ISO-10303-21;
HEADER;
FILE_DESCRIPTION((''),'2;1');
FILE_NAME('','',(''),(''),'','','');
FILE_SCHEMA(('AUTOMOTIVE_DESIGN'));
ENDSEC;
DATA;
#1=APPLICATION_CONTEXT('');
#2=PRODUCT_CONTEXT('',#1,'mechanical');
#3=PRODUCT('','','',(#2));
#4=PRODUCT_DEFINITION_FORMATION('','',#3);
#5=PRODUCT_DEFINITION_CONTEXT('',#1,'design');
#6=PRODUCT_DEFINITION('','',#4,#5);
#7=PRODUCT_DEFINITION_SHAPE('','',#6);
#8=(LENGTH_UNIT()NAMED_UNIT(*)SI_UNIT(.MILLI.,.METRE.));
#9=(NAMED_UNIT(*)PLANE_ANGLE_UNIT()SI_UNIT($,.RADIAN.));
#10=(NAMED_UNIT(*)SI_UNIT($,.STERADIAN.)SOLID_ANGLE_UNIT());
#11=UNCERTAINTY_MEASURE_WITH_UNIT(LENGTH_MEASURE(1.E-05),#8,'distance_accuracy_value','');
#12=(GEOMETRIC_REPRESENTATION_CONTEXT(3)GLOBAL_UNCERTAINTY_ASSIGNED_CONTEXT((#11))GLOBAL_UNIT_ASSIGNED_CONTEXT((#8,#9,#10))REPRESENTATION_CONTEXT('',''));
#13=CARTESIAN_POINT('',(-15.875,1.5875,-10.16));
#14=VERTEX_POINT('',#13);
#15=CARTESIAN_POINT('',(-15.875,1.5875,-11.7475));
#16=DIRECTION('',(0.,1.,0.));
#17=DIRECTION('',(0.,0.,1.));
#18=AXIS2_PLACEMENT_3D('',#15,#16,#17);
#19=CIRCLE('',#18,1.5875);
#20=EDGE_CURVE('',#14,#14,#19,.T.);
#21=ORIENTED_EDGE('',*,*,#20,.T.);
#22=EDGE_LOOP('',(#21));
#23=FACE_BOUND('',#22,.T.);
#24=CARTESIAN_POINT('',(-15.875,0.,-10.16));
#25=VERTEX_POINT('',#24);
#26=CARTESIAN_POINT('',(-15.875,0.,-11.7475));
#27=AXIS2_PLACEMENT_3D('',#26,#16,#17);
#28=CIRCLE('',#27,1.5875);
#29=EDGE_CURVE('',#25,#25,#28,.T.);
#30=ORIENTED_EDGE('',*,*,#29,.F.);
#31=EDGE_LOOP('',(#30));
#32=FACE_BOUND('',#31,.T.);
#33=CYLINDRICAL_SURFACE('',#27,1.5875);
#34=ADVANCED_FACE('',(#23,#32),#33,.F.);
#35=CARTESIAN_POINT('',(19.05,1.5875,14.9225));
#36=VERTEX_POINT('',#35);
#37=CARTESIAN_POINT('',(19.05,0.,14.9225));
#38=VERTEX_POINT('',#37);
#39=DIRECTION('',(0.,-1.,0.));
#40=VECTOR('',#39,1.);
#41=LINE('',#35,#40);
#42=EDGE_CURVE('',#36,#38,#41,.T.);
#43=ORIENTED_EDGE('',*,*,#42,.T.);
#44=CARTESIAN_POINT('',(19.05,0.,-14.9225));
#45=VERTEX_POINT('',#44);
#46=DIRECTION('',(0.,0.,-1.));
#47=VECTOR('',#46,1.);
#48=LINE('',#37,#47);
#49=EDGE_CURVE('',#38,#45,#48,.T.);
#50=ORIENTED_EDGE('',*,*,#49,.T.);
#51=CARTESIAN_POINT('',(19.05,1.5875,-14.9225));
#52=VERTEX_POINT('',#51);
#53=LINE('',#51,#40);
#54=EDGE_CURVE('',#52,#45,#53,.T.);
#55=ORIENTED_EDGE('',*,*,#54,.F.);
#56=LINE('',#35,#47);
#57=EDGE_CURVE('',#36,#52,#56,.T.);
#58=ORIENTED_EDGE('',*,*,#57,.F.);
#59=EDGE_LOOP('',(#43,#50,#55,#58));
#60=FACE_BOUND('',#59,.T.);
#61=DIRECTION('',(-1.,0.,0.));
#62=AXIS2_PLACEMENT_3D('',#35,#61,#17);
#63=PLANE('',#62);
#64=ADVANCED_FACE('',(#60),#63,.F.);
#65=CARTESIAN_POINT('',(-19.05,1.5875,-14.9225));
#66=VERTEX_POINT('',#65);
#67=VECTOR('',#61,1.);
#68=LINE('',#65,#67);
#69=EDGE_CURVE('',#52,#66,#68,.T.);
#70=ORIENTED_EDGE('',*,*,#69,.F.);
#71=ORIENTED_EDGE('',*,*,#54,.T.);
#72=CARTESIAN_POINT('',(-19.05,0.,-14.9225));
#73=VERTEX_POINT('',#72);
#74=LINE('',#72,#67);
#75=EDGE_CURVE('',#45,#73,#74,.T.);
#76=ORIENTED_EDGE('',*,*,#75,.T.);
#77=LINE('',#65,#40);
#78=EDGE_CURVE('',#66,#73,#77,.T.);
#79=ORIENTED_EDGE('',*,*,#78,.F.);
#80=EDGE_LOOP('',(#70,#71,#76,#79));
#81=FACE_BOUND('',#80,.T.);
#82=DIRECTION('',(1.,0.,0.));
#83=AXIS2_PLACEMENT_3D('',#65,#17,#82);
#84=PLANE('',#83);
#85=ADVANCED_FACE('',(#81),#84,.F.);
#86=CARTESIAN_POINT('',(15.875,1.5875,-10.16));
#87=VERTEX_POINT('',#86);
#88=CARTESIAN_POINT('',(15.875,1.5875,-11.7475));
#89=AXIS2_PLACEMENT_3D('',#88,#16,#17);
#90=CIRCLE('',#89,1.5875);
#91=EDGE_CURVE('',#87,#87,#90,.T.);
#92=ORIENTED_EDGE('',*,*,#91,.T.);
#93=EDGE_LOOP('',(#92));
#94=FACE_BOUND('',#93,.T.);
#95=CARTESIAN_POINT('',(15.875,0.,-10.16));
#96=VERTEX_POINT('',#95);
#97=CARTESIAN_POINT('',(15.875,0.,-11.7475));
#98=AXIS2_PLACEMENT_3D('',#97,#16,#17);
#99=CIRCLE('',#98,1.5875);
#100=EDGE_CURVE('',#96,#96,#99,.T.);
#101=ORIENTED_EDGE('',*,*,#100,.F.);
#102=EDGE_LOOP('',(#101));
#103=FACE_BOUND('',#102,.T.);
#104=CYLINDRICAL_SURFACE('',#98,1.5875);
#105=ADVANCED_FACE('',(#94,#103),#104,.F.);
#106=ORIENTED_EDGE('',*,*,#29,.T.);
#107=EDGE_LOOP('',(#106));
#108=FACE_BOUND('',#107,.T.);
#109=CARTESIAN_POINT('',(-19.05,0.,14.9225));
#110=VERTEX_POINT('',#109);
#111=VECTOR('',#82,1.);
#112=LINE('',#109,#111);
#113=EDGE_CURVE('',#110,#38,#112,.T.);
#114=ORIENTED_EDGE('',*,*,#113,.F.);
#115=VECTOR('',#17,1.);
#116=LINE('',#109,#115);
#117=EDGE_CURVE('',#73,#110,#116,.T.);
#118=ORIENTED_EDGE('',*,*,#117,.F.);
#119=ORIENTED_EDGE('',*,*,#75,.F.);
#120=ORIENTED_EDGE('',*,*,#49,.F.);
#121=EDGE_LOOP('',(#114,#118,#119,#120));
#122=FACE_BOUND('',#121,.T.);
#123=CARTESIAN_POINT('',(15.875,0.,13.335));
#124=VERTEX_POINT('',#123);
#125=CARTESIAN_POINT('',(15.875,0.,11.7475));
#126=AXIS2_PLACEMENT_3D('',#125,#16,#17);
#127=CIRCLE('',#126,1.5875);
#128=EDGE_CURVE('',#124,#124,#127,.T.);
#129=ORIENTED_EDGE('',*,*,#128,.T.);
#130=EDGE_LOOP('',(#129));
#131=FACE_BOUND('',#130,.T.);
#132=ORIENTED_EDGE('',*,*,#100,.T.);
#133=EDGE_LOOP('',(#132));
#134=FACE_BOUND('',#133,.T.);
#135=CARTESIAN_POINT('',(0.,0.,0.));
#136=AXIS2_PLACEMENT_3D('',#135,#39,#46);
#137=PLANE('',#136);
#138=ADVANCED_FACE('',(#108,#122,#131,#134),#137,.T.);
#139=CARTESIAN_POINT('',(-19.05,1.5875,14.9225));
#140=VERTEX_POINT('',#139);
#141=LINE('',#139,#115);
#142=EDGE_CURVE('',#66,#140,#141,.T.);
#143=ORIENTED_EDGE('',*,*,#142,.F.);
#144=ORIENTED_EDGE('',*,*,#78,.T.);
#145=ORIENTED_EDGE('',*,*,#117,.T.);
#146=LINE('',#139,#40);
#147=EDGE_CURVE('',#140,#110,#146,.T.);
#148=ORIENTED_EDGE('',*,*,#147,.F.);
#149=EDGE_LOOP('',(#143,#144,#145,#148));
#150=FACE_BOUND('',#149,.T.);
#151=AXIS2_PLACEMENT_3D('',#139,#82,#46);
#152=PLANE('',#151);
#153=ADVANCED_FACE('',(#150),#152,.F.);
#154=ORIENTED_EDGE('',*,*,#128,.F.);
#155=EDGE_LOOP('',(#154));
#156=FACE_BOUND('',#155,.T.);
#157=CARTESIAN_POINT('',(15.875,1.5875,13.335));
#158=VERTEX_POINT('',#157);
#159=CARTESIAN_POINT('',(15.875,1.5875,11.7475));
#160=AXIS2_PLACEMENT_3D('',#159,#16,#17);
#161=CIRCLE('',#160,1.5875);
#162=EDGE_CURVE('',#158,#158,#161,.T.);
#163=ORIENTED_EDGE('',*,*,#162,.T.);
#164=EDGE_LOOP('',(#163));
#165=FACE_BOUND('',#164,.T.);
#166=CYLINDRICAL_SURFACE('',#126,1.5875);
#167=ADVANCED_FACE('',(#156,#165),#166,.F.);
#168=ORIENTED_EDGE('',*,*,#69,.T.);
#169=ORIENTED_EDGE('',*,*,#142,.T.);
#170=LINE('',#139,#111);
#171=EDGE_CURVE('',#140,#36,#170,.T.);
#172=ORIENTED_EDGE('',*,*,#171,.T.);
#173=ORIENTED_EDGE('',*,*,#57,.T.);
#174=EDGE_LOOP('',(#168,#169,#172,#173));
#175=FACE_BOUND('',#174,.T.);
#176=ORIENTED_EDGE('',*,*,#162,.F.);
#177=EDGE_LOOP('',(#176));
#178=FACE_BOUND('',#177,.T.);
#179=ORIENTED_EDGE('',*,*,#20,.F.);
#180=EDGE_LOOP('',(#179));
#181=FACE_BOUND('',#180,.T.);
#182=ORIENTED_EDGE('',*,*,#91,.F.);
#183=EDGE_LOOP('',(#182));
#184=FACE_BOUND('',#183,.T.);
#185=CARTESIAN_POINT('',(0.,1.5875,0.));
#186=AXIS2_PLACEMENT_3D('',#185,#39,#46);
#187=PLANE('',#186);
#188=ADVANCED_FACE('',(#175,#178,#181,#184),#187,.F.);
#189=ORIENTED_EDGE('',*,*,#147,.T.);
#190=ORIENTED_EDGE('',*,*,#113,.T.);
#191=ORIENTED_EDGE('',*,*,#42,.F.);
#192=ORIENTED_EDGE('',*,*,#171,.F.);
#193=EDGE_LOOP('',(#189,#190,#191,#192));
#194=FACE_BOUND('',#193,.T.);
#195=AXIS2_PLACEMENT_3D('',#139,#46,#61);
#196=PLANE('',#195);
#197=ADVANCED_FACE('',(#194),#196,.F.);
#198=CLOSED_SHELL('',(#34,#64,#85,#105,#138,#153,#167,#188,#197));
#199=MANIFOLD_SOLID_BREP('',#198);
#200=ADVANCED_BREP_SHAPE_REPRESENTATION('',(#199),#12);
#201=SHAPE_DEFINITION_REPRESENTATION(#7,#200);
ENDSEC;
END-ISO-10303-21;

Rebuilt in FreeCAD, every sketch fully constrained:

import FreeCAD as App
import Part
import Sketcher
from FreeCAD import Vector
Q = App.Units.Quantity


def add_polygon(sketch, points):
    """Adds a closed chain of lines whose ends are joined by coincident constraints."""
    first, n = sketch.GeometryCount, len(points)
    for a, b in zip(points, points[1:] + points[:1]):
        sketch.addGeometry(Part.LineSegment(App.Vector(*a, 0), App.Vector(*b, 0)), False)
    for i in range(n):
        sketch.addConstraint(Sketcher.Constraint("Coincident", first + i, 2, first + (i + 1) % n, 1))

doc = App.newDocument("Part")
body = doc.addObject("PartDesign::Body", "Body")

sketch1 = body.newObject("Sketcher::SketchObject", "Sketch")
sketch1.AttachmentSupport = (doc.getObject("XZ_Plane"), [""])
sketch1.MapMode = "FlatFace"
add_polygon(sketch1, [(-19.05, -14.9225), (-19.05, 14.9225), (19.05, 14.9225), (19.05, -14.9225)])
sketch1.addConstraint([
    Sketcher.Constraint("Vertical", 0),
    Sketcher.Constraint("Horizontal", 1),
    Sketcher.Constraint("Vertical", 2),
    Sketcher.Constraint("Horizontal", 3),
    Sketcher.Constraint("Symmetric", 0, 2, 2, 2, -1, 1),
    Sketcher.Constraint("DistanceX", 1, 1, 1, 2, Q("1.5 in")),
    Sketcher.Constraint("DistanceY", 0, 1, 0, 2, Q("1.175 in")),
])
pad1 = body.newObject("PartDesign::Pad", "Pad")
pad1.Profile = sketch1
pad1.Length = Q("0.0625 in")
pad1.Reversed = True

sketch2 = body.newObject("Sketcher::SketchObject", "Sketch001")
sketch2.AttachmentSupport = (doc.getObject("XZ_Plane"), [""])
sketch2.MapMode = "FlatFace"
sketch2.AttachmentOffset = App.Placement(Vector(0, 0, -0.0625 * 25.4), App.Rotation())
sketch2.addGeometry([
    Part.Circle(Vector(-15.875, -11.7475, 0), Vector(0, 0, 1), 1.5875),
    Part.Circle(Vector(15.875, -11.7475, 0), Vector(0, 0, 1), 1.5875),
    Part.Circle(Vector(15.875, 11.7475, 0), Vector(0, 0, 1), 1.5875),
], False)
sketch2.addConstraint([
    Sketcher.Constraint("Equal", 0, 1),
    Sketcher.Constraint("Equal", 1, 2),
    Sketcher.Constraint("Symmetric", 0, 3, 2, 3, -1, 1),
    Sketcher.Constraint("Symmetric", 0, 3, 1, 3, -2),
    Sketcher.Constraint("Diameter", 0, Q("0.125 in")),
    Sketcher.Constraint("DistanceX", 0, 3, 1, 3, Q("1.25 in")),
    Sketcher.Constraint("DistanceY", 1, 3, 2, 3, Q("0.925 in")),
])
pocket1 = body.newObject("PartDesign::Pocket", "Pocket")
pocket1.Profile = sketch2
pocket1.Type = "ThroughAll"
pocket1.Reversed = True

doc.recompute()
